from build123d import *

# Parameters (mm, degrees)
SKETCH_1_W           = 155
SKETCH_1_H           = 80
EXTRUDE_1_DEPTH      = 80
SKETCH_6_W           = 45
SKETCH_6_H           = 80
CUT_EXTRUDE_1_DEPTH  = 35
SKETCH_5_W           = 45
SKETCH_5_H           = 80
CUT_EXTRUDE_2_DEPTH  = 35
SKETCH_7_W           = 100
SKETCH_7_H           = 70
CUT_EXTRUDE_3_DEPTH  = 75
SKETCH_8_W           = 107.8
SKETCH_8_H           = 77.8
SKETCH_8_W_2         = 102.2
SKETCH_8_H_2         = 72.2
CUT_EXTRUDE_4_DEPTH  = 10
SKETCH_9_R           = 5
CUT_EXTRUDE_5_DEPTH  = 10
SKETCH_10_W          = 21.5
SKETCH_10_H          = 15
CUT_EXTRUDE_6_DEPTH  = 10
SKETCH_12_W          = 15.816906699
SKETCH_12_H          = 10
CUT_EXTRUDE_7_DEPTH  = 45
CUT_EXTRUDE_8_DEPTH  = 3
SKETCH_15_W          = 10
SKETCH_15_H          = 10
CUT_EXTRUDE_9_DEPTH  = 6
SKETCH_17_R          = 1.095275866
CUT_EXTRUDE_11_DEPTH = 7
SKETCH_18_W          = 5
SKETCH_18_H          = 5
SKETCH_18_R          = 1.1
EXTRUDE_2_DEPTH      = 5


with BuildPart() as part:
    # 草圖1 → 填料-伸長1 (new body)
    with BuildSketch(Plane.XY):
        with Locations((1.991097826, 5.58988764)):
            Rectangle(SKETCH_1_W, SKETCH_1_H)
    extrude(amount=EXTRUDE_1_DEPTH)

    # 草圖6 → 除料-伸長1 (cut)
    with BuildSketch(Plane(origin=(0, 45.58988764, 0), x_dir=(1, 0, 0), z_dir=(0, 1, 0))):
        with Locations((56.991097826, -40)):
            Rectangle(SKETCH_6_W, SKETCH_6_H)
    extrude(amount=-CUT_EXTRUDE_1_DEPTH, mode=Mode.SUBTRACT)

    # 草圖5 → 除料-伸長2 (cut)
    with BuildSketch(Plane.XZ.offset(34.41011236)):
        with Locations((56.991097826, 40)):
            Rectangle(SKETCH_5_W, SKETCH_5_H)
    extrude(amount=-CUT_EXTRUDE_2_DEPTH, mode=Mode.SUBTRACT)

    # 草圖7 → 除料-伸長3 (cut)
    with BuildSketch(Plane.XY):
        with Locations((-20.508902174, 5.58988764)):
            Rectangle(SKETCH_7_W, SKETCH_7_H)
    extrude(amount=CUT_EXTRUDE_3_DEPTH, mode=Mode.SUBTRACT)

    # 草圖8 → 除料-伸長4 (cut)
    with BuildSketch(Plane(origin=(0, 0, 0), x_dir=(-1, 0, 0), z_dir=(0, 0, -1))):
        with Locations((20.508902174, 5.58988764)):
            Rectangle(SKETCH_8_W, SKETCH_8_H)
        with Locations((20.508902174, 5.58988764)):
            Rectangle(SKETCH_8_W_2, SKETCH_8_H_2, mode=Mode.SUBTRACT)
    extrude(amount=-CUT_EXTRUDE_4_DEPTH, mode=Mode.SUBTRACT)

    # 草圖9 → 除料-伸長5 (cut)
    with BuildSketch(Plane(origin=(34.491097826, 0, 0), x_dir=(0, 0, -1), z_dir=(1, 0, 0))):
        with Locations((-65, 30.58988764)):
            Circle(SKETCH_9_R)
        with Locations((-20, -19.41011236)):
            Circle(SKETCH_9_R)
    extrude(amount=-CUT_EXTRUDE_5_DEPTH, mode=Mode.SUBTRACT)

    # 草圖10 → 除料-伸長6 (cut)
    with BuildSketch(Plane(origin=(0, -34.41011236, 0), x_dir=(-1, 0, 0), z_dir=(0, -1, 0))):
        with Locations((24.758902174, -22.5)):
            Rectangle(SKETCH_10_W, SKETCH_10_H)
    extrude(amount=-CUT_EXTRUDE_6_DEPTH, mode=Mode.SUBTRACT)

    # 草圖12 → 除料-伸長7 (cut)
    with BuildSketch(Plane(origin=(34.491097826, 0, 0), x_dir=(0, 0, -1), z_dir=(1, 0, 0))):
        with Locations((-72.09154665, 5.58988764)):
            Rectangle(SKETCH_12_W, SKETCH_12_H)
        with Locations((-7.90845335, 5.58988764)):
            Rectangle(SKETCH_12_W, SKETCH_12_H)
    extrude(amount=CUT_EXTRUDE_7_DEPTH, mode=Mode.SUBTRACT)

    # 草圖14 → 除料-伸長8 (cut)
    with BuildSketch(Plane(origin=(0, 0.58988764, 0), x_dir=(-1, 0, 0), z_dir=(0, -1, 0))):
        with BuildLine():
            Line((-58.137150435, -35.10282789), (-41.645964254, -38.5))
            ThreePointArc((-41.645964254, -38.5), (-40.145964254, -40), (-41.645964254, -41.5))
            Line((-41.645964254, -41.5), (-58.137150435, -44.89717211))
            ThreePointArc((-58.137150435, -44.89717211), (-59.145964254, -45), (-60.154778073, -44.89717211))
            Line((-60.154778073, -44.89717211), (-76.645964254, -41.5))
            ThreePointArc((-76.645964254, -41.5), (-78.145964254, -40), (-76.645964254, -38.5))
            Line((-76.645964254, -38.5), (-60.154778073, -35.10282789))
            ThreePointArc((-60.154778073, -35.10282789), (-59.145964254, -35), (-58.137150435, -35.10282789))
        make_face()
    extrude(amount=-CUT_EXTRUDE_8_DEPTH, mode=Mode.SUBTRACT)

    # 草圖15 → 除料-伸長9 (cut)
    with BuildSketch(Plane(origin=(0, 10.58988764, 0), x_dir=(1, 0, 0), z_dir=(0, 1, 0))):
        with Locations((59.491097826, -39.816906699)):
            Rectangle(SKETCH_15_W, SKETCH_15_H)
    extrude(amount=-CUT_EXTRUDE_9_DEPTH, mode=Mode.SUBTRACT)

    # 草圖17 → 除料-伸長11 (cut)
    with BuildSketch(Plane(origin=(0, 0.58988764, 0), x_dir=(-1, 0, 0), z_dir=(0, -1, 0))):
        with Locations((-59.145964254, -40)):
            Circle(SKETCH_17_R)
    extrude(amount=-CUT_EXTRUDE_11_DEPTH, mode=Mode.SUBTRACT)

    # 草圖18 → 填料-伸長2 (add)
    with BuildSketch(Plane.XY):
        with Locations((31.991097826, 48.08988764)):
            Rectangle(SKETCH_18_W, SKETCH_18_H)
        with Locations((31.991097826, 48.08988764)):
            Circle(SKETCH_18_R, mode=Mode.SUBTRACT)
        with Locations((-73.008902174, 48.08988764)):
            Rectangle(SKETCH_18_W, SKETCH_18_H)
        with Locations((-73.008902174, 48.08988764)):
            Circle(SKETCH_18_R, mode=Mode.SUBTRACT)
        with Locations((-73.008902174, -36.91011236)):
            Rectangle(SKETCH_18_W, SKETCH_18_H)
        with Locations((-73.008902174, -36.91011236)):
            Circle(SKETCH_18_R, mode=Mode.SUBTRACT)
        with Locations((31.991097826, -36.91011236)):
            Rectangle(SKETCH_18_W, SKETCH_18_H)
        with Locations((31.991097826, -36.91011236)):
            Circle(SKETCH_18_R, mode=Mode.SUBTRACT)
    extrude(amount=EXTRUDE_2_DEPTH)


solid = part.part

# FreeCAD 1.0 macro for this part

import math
import FreeCAD as App
import Part
import Sketcher
from FreeCAD import Vector


def add_polygon(sketch, points):
    """Adds a closed chain of lines whose ends are joined by coincident constraints."""
    first, n = sketch.GeometryCount, len(points)
    for a, b in zip(points, points[1:] + points[:1]):
        sketch.addGeometry(Part.LineSegment(App.Vector(*a, 0), App.Vector(*b, 0)), False)
    for i in range(n):
        sketch.addConstraint(Sketcher.Constraint("Coincident", first + i, 2, first + (i + 1) % n, 1))

doc = App.newDocument("Part")
body = doc.addObject("PartDesign::Body", "Body")

sketch1 = doc.addObject("Sketcher::SketchObject", "Sketch")
body.addObject(sketch1)
sketch1.AttachmentSupport = (doc.XY_Plane, [""])
sketch1.MapMode = "FlatFace"
add_polygon(sketch1, [(-75.508902, 45.589888), (-75.508902, -34.410112), (79.491098, -34.410112), (79.491098, 45.589888)])
sketch1.addConstraint([
    Sketcher.Constraint("Vertical", 0),
    Sketcher.Constraint("Horizontal", 1),
    Sketcher.Constraint("Vertical", 2),
    Sketcher.Constraint("Horizontal", 3),
    Sketcher.Constraint("DistanceX", 1, 1, 1, 2, 155.0),
    Sketcher.Constraint("DistanceY", 0, 2, 0, 1, 80.0),
    Sketcher.Constraint("DistanceX", 0, 2, -1, 1, 75.508902),
    Sketcher.Constraint("DistanceY", 0, 2, -1, 1, 34.410112),
])
pad1 = doc.addObject("PartDesign::Pad", "Pad")
body.addObject(pad1)
pad1.Profile = sketch1
pad1.Length = 80

sketch2 = doc.addObject("Sketcher::SketchObject", "Sketch001")
body.addObject(sketch2)
sketch2.AttachmentSupport = (doc.XZ_Plane, [""])
sketch2.MapMode = "FlatFace"
sketch2.AttachmentOffset = App.Placement(Vector(0, 0, -45.589888), App.Rotation())
add_polygon(sketch2, [(34.491098, 0), (34.491098, 80), (79.491098, 80), (79.491098, 0)])
sketch2.addConstraint([
    Sketcher.Constraint("Vertical", 0),
    Sketcher.Constraint("Horizontal", 1),
    Sketcher.Constraint("Vertical", 2),
    Sketcher.Constraint("Horizontal", 3),
    Sketcher.Constraint("PointOnObject", 2, 2, -1),
    Sketcher.Constraint("DistanceX", 1, 1, 1, 2, 45.0),
    Sketcher.Constraint("DistanceY", 0, 1, 0, 2, 80.0),
    Sketcher.Constraint("DistanceX", -1, 1, 0, 2, 34.491098),
])
pocket1 = doc.addObject("PartDesign::Pocket", "Pocket")
body.addObject(pocket1)
pocket1.Profile = sketch2
pocket1.Length = 35
pocket1.Reversed = True

sketch3 = doc.addObject("Sketcher::SketchObject", "Sketch002")
body.addObject(sketch3)
sketch3.AttachmentSupport = (doc.XZ_Plane, [""])
sketch3.MapMode = "FlatFace"
sketch3.AttachmentOffset = App.Placement(Vector(0, 0, 34.410112), App.Rotation())
add_polygon(sketch3, [(34.491098, 80), (34.491098, 0), (79.491098, 0), (79.491098, 80)])
sketch3.addConstraint([
    Sketcher.Constraint("Vertical", 0),
    Sketcher.Constraint("Horizontal", 1),
    Sketcher.Constraint("Vertical", 2),
    Sketcher.Constraint("Horizontal", 3),
    Sketcher.Constraint("PointOnObject", 0, 2, -1),
    Sketcher.Constraint("DistanceX", 1, 1, 1, 2, 45.0),
    Sketcher.Constraint("DistanceY", 0, 2, 0, 1, 80.0),
    Sketcher.Constraint("DistanceX", -1, 1, 0, 2, 34.491098),
])
pocket2 = doc.addObject("PartDesign::Pocket", "Pocket001")
body.addObject(pocket2)
pocket2.Profile = sketch3
pocket2.Length = 35

sketch4 = doc.addObject("Sketcher::SketchObject", "Sketch003")
body.addObject(sketch4)
sketch4.AttachmentSupport = (doc.XY_Plane, [""])
sketch4.MapMode = "FlatFace"
add_polygon(sketch4, [(-70.508902, 40.589888), (-70.508902, -29.410112), (29.491098, -29.410112), (29.491098, 40.589888)])
sketch4.addConstraint([
    Sketcher.Constraint("Vertical", 0),
    Sketcher.Constraint("Horizontal", 1),
    Sketcher.Constraint("Vertical", 2),
    Sketcher.Constraint("Horizontal", 3),
    Sketcher.Constraint("DistanceX", 1, 1, 1, 2, 100.0),
    Sketcher.Constraint("DistanceY", 0, 2, 0, 1, 70.0),
    Sketcher.Constraint("DistanceX", 0, 2, -1, 1, 70.508902),
    Sketcher.Constraint("DistanceY", 0, 2, -1, 1, 29.410112),
])
pocket3 = doc.addObject("PartDesign::Pocket", "Pocket002")
body.addObject(pocket3)
pocket3.Profile = sketch4
pocket3.Length = 75
pocket3.Reversed = True

sketch5 = doc.addObject("Sketcher::SketchObject", "Sketch004")
body.addObject(sketch5)
sketch5.AttachmentSupport = (doc.XY_Plane, [""])
sketch5.MapMode = "FlatFace"
add_polygon(sketch5, [(33.391098, 44.489888), (33.391098, -33.310112), (-74.408902, -33.310112), (-74.408902, 44.489888)])
add_polygon(sketch5, [(-71.608902, -30.510112), (30.591098, -30.510112), (30.591098, 41.689888), (-71.608902, 41.689888)])
sketch5.addConstraint([
    Sketcher.Constraint("Vertical", 0),
    Sketcher.Constraint("Horizontal", 1),
    Sketcher.Constraint("Vertical", 2),
    Sketcher.Constraint("Horizontal", 3),
    Sketcher.Constraint("Horizontal", 4),
    Sketcher.Constraint("Vertical", 5),
    Sketcher.Constraint("Horizontal", 6),
    Sketcher.Constraint("Vertical", 7),
    Sketcher.Constraint("DistanceX", 1, 2, 1, 1, 107.8),
    Sketcher.Constraint("DistanceX", 4, 1, 4, 2, 102.2),
    Sketcher.Constraint("DistanceY", 0, 2, 0, 1, 77.8),
    Sketcher.Constraint("DistanceY", 5, 1, 5, 2, 72.2),
    Sketcher.Constraint("DistanceY", 4, 2, 3, 2, 75.0),
    Sketcher.Constraint("DistanceX", 1, 2, 4, 2, 105.0),
    Sketcher.Constraint("DistanceX", -1, 1, 0, 2, 33.391098),
    Sketcher.Constraint("DistanceY", 0, 2, -1, 1, 33.310112),
])
pocket4 = doc.addObject("PartDesign::Pocket", "Pocket003")
body.addObject(pocket4)
pocket4.Profile = sketch5
pocket4.Length = 10
pocket4.Reversed = True

sketch6 = doc.addObject("Sketcher::SketchObject", "Sketch005")
body.addObject(sketch6)
sketch6.AttachmentSupport = (doc.YZ_Plane, [""])
sketch6.MapMode = "FlatFace"
sketch6.AttachmentOffset = App.Placement(Vector(0, 0, 34.491098), App.Rotation())
sketch6.addGeometry([
    Part.Circle(Vector(30.589888, 65, 0), Vector(0, 0, 1), 5),
    Part.Circle(Vector(-19.410112, 20, 0), Vector(0, 0, 1), 5),
], False)
sketch6.addConstraint([
    Sketcher.Constraint("Equal", 0, 1),
    Sketcher.Constraint("Diameter", 0, 10.0),
    Sketcher.Constraint("DistanceY", -1, 1, 0, 3, 65.0),
    Sketcher.Constraint("DistanceY", -1, 1, 1, 3, 20.0),
    Sketcher.Constraint("DistanceX", 1, 3, 0, 3, 50.0),
    Sketcher.Constraint("DistanceX", -1, 1, 0, 3, 30.589888),
])
pocket5 = doc.addObject("PartDesign::Pocket", "Pocket004")
body.addObject(pocket5)
pocket5.Profile = sketch6
pocket5.Length = 10

sketch7 = doc.addObject("Sketcher::SketchObject", "Sketch006")
body.addObject(sketch7)
sketch7.AttachmentSupport = (doc.XZ_Plane, [""])
sketch7.MapMode = "FlatFace"
sketch7.AttachmentOffset = App.Placement(Vector(0, 0, 34.410112), App.Rotation())
add_polygon(sketch7, [(-14.008902, 15), (-14.008902, 30), (-35.508902, 30), (-35.508902, 15)])
sketch7.addConstraint([
    Sketcher.Constraint("Vertical", 0),
    Sketcher.Constraint("Horizontal", 1),
    Sketcher.Constraint("Vertical", 2),
    Sketcher.Constraint("Horizontal", 3),
    Sketcher.Constraint("DistanceY", 0, 1, 0, 2, 15.0),
    Sketcher.Constraint("DistanceX", 1, 2, 1, 1, 21.5),
    Sketcher.Constraint("DistanceY", -1, 1, 0, 2, 30.0),
    Sketcher.Constraint("DistanceX", 0, 2, -1, 1, 14.008902),
])
pocket6 = doc.addObject("PartDesign::Pocket", "Pocket005")
body.addObject(pocket6)
pocket6.Profile = sketch7
pocket6.Length = 10

sketch8 = doc.addObject("Sketcher::SketchObject", "Sketch007")
body.addObject(sketch8)
sketch8.AttachmentSupport = (doc.YZ_Plane, [""])
sketch8.MapMode = "FlatFace"
sketch8.AttachmentOffset = App.Placement(Vector(0, 0, 34.491098), App.Rotation())
add_polygon(sketch8, [(10.589888, 80), (0.589888, 80), (0.589888, 64.183093), (10.589888, 64.183093)])
add_polygon(sketch8, [(10.589888, 15.816907), (0.589888, 15.816907), (0.589888, 0), (10.589888, 0)])
sketch8.addConstraint([
    Sketcher.Constraint("Horizontal", 0),
    Sketcher.Constraint("Vertical", 1),
    Sketcher.Constraint("Horizontal", 2),
    Sketcher.Constraint("Vertical", 3),
    Sketcher.Constraint("Horizontal", 4),
    Sketcher.Constraint("Vertical", 5),
    Sketcher.Constraint("Horizontal", 6),
    Sketcher.Constraint("Vertical", 7),
    Sketcher.Constraint("PointOnObject", 5, 2, -1),
    Sketcher.Constraint("Vertical", 1, 2, 4, 2),
    Sketcher.Constraint("Vertical", 3, 2, 6, 2),
    Sketcher.Constraint("Equal", 3, 5),
    Sketcher.Constraint("DistanceX", 0, 2, 0, 1, 10.0),
    Sketcher.Constraint("DistanceY", -1, 1, 0, 2, 80.0),
    Sketcher.Constraint("DistanceY", 1, 2, 1, 1, 15.816907),
    Sketcher.Constraint("DistanceX", -1, 1, 0, 2, 0.589888),
])
pocket7 = doc.addObject("PartDesign::Pocket", "Pocket006")
body.addObject(pocket7)
pocket7.Profile = sketch8
pocket7.Length = 45
pocket7.Reversed = True

sketch9 = doc.addObject("Sketcher::SketchObject", "Sketch008")
body.addObject(sketch9)
sketch9.AttachmentSupport = (doc.XZ_Plane, [""])
sketch9.MapMode = "FlatFace"
sketch9.AttachmentOffset = App.Placement(Vector(0, 0, -0.589888), App.Rotation())
sketch9.addGeometry([
    Part.LineSegment(Vector(41.645964, 38.5, 0), Vector(58.13715, 35.102828, 0)),
    Part.ArcOfCircle(Part.Circle(Vector(59.145964, 40, 0), Vector(0, 0, 1), 5), math.radians(-101.64006), math.radians(-78.35994)),
    Part.LineSegment(Vector(60.154778, 35.102828, 0), Vector(76.645964, 38.5, 0)),
    Part.ArcOfCircle(Part.Circle(Vector(76.645964, 40, 0), Vector(0, 0, 1), 1.5), math.radians(-90), math.radians(90)),
    Part.LineSegment(Vector(76.645964, 41.5, 0), Vector(60.154778, 44.897172, 0)),
    Part.ArcOfCircle(Part.Circle(Vector(59.145964, 40, 0), Vector(0, 0, 1), 5), math.radians(78.35994), math.radians(101.64006)),
    Part.LineSegment(Vector(58.13715, 44.897172, 0), Vector(41.645964, 41.5, 0)),
    Part.ArcOfCircle(Part.Circle(Vector(41.645964, 40, 0), Vector(0, 0, 1), 1.5), math.radians(90), math.radians(270)),
], False)
sketch9.addConstraint([
    Sketcher.Constraint("Tangent", 0, 2, 1, 1),
    Sketcher.Constraint("Tangent", 1, 2, 2, 1),
    Sketcher.Constraint("Coincident", 2, 2, 3, 1),
    Sketcher.Constraint("Coincident", 3, 2, 4, 1),
    Sketcher.Constraint("Tangent", 4, 2, 5, 1),
    Sketcher.Constraint("Tangent", 5, 2, 6, 1),
    Sketcher.Constraint("Coincident", 6, 2, 7, 1),
    Sketcher.Constraint("Coincident", 7, 2, 0, 1),
    Sketcher.Constraint("Coincident", 5, 3, 1, 3),
    Sketcher.Constraint("Equal", 1, 5),
    Sketcher.Constraint("Equal", 3, 7),
    Sketcher.Constraint("Parallel", 0, 4),
    Sketcher.Constraint("Parallel", 2, 6),
    Sketcher.Constraint("Horizontal", 1, 3, 3, 3),
    Sketcher.Constraint("Horizontal", 5, 3, 7, 3),
    Sketcher.Constraint("Horizontal", 0, 2, 1, 2),
    Sketcher.Constraint("Vertical", 3, 3, 2, 2),
    Sketcher.Constraint("Vertical", 7, 3, 6, 2),
    Sketcher.Constraint("Radius", 1, 5.0),
    Sketcher.Constraint("Radius", 3, 1.5),
    Sketcher.Constraint("DistanceY", -1, 1, 1, 3, 40.0),
    Sketcher.Constraint("DistanceX", 7, 3, 3, 3, 35.0),
    Sketcher.Constraint("DistanceX", -1, 1, 0, 2, 58.13715),
])
pocket8 = doc.addObject("PartDesign::Pocket", "Pocket007")
body.addObject(pocket8)
pocket8.Profile = sketch9
pocket8.Length = 3

sketch10 = doc.addObject("Sketcher::SketchObject", "Sketch009")
body.addObject(sketch10)
sketch10.AttachmentSupport = (doc.XZ_Plane, [""])
sketch10.MapMode = "FlatFace"
sketch10.AttachmentOffset = App.Placement(Vector(0, 0, -10.589888), App.Rotation())
add_polygon(sketch10, [(54.491098, 34.816907), (54.491098, 44.816907), (64.491098, 44.816907), (64.491098, 34.816907)])
sketch10.addConstraint([
    Sketcher.Constraint("Vertical", 0),
    Sketcher.Constraint("Horizontal", 1),
    Sketcher.Constraint("Vertical", 2),
    Sketcher.Constraint("Horizontal", 3),
    Sketcher.Constraint("Equal", 3, 0),
    Sketcher.Constraint("DistanceX", 1, 1, 1, 2, 10.0),
    Sketcher.Constraint("DistanceX", -1, 1, 0, 2, 54.491098),
    Sketcher.Constraint("DistanceY", -1, 1, 0, 2, 44.816907),
])
pocket9 = doc.addObject("PartDesign::Pocket", "Pocket008")
body.addObject(pocket9)
pocket9.Profile = sketch10
pocket9.Length = 6
pocket9.Reversed = True

sketch11 = doc.addObject("Sketcher::SketchObject", "Sketch010")
body.addObject(sketch11)
sketch11.AttachmentSupport = (doc.XZ_Plane, [""])
sketch11.MapMode = "FlatFace"
sketch11.AttachmentOffset = App.Placement(Vector(0, 0, -0.589888), App.Rotation())
sketch11.addGeometry(Part.Circle(Vector(59.145964, 40, 0), Vector(0, 0, 1), 1.095276), False)
sketch11.addConstraint([
    Sketcher.Constraint("DistanceY", -1, 1, 0, 3, 40.0),
    Sketcher.Constraint("Diameter", 0, 2.190552),
    Sketcher.Constraint("DistanceX", -1, 1, 0, 3, 59.145964),
])
pocket10 = doc.addObject("PartDesign::Pocket", "Pocket009")
body.addObject(pocket10)
pocket10.Profile = sketch11
pocket10.Length = 7

sketch12 = doc.addObject("Sketcher::SketchObject", "Sketch011")
body.addObject(sketch12)
sketch12.AttachmentSupport = (doc.XY_Plane, [""])
sketch12.MapMode = "FlatFace"
add_polygon(sketch12, [(29.491098, 50.589888), (29.491098, 45.589888), (34.491098, 45.589888), (34.491098, 50.589888)])
sketch12.addGeometry(Part.Circle(Vector(31.991098, 48.089888, 0), Vector(0, 0, 1), 1.1), False)
add_polygon(sketch12, [(-75.508902, 50.589888), (-75.508902, 45.589888), (-70.508902, 45.589888), (-70.508902, 50.589888)])
sketch12.addGeometry(Part.Circle(Vector(-73.008902, 48.089888, 0), Vector(0, 0, 1), 1.1), False)
add_polygon(sketch12, [(-75.508902, -34.410112), (-75.508902, -39.410112), (-70.508902, -39.410112), (-70.508902, -34.410112)])
sketch12.addGeometry(Part.Circle(Vector(-73.008902, -36.910112, 0), Vector(0, 0, 1), 1.1), False)
add_polygon(sketch12, [(29.491098, -34.410112), (29.491098, -39.410112), (34.491098, -39.410112), (34.491098, -34.410112)])
sketch12.addGeometry(Part.Circle(Vector(31.991098, -36.910112, 0), Vector(0, 0, 1), 1.1), False)
sketch12.addConstraint([
    Sketcher.Constraint("Vertical", 0),
    Sketcher.Constraint("Horizontal", 1),
    Sketcher.Constraint("Vertical", 2),
    Sketcher.Constraint("Horizontal", 3),
    Sketcher.Constraint("Vertical", 5),
    Sketcher.Constraint("Horizontal", 6),
    Sketcher.Constraint("Vertical", 7),
    Sketcher.Constraint("Horizontal", 8),
    Sketcher.Constraint("Vertical", 10),
    Sketcher.Constraint("Horizontal", 11),
    Sketcher.Constraint("Vertical", 12),
    Sketcher.Constraint("Horizontal", 13),
    Sketcher.Constraint("Vertical", 15),
    Sketcher.Constraint("Horizontal", 16),
    Sketcher.Constraint("Vertical", 17),
    Sketcher.Constraint("Horizontal", 18),
    Sketcher.Constraint("Equal", 4, 9),
    Sketcher.Constraint("Equal", 9, 14),
    Sketcher.Constraint("Equal", 14, 19),
    Sketcher.Constraint("Horizontal", 4, 3, 9, 3),
    Sketcher.Constraint("Horizontal", 14, 3, 19, 3),
    Sketcher.Constraint("Horizontal", 1, 2, 5, 2),
    Sketcher.Constraint("Horizontal", 3, 2, 7, 2),
    Sketcher.Constraint("Horizontal", 11, 2, 15, 2),
    Sketcher.Constraint("Horizontal", 13, 2, 17, 2),
    Sketcher.Constraint("Vertical", 9, 3, 14, 3),
    Sketcher.Constraint("Vertical", 4, 3, 19, 3),
    Sketcher.Constraint("Vertical", 8, 2, 10, 2),
    Sketcher.Constraint("Vertical", 7, 2, 11, 2),
    Sketcher.Constraint("Vertical", 3, 2, 15, 2),
    Sketcher.Constraint("Vertical", 2, 2, 16, 2),
    Sketcher.Constraint("Equal", 3, 6),
    Sketcher.Constraint("Equal", 18, 0),
    Sketcher.Constraint("Equal", 7, 10),
    Sketcher.Constraint("Diameter", 4, 2.2),
    Sketcher.Constraint("DistanceX", 1, 1, 1, 2, 5.0),
    Sketcher.Constraint("DistanceX", 9, 3, 4, 3, 105.0),
    Sketcher.Constraint("DistanceY", 14, 3, 9, 3, 85.0),
    Sketcher.Constraint("DistanceX", 5, 2, 0, 2, 105.0),
    Sketcher.Constraint("DistanceY", 10, 2, 5, 2, 85.0),
    Sketcher.Constraint("DistanceX", 0, 2, 4, 3, 2.5),
    Sketcher.Constraint("DistanceY", 0, 2, 4, 3, 2.5),
    Sketcher.Constraint("DistanceX", -1, 1, 4, 3, 31.991098),
    Sketcher.Constraint("DistanceY", -1, 1, 4, 3, 48.089888),
])
pad2 = doc.addObject("PartDesign::Pad", "Pad001")
body.addObject(pad2)
pad2.Profile = sketch12
pad2.Length = 5

doc.recompute()
